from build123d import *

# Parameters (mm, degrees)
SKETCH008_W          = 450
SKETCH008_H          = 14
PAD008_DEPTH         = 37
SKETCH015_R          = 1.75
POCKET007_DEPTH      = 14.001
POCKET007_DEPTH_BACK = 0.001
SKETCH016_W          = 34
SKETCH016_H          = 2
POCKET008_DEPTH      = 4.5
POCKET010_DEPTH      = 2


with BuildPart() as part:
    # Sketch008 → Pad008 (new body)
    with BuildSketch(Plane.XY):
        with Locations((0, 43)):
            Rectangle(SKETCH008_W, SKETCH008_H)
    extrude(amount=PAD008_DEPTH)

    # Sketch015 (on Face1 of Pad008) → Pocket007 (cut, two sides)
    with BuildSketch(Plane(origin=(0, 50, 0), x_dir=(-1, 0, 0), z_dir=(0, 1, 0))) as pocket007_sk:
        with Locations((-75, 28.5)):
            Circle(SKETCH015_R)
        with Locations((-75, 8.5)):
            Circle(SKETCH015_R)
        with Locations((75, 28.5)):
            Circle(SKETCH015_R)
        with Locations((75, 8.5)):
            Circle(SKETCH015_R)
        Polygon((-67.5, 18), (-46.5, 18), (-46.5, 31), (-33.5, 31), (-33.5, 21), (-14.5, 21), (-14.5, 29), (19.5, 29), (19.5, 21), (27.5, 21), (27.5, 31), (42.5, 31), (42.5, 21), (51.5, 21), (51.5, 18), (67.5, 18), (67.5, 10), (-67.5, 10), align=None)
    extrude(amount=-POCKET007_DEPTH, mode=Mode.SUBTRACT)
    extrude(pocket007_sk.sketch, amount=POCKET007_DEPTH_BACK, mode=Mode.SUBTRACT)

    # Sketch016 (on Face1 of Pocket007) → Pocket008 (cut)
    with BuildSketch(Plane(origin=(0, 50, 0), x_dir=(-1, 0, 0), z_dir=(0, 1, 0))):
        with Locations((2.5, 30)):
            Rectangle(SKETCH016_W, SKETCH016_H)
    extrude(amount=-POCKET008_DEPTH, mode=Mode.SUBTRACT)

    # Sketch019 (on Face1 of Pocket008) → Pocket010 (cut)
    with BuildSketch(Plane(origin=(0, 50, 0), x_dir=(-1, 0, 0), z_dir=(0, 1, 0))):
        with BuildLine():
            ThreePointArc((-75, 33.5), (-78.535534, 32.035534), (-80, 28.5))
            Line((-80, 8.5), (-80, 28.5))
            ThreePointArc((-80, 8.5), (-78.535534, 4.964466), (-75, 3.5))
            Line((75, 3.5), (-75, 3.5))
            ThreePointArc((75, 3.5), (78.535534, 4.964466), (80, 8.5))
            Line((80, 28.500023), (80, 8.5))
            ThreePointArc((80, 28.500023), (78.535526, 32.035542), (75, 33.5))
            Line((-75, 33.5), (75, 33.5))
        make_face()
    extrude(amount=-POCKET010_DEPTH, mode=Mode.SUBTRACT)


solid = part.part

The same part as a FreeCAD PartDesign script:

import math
import FreeCAD as App
import Part
import Sketcher
from FreeCAD import Vector

doc = App.newDocument("Part")
body = doc.addObject("PartDesign::Body", "Body")

# Sketch on XY plane
sketch1 = body.newObject("Sketcher::SketchObject", "Sketch")
sketch1.AttachmentSupport = (doc.getObject("XY_Plane"), [""])
sketch1.MapMode = "FlatFace"
sketch1.addGeometry(Part.LineSegment(Vector(-225, 50, 0), Vector(-225, 36, 0)), False)
sketch1.addGeometry(Part.LineSegment(Vector(-225, 36, 0), Vector(225, 36, 0)), False)
sketch1.addGeometry(Part.LineSegment(Vector(225, 36, 0), Vector(225, 50, 0)), False)
sketch1.addGeometry(Part.LineSegment(Vector(225, 50, 0), Vector(-225, 50, 0)), False)
sketch1.addConstraint(Sketcher.Constraint("Coincident", 0, 2, 1, 1))
sketch1.addConstraint(Sketcher.Constraint("Coincident", 1, 2, 2, 1))
sketch1.addConstraint(Sketcher.Constraint("Coincident", 2, 2, 3, 1))
sketch1.addConstraint(Sketcher.Constraint("Coincident", 3, 2, 0, 1))
sketch1.addConstraint(Sketcher.Constraint("Vertical", 0))
sketch1.addConstraint(Sketcher.Constraint("Horizontal", 1))
sketch1.addConstraint(Sketcher.Constraint("Vertical", 2))
sketch1.addConstraint(Sketcher.Constraint("Horizontal", 3))
sketch1.addConstraint(Sketcher.Constraint("DistanceX", 1, 1, 1, 2, 450.0))
sketch1.addConstraint(Sketcher.Constraint("DistanceY", 0, 2, 0, 1, 14.0))
sketch1.addConstraint(Sketcher.Constraint("DistanceX", 0, 2, -1, 1, 225.0))
sketch1.addConstraint(Sketcher.Constraint("DistanceY", -1, 1, 0, 2, 36.0))
pad1 = body.newObject("PartDesign::Pad", "Pad")
pad1.Profile = sketch1
pad1.Length = 37

# Sketch on XZ plane
sketch2 = body.newObject("Sketcher::SketchObject", "Sketch001")
sketch2.AttachmentSupport = (doc.getObject("XZ_Plane"), [""])
sketch2.MapMode = "FlatFace"
sketch2.AttachmentOffset = App.Placement(Vector(0, 0, -50), App.Rotation())
sketch2.addGeometry(Part.Circle(Vector(75, 28.5, 0), Vector(0, 0, 1), 1.8), False)
sketch2.addGeometry(Part.Circle(Vector(75, 8.5, 0), Vector(0, 0, 1), 1.8), False)
sketch2.addGeometry(Part.Circle(Vector(-75, 28.5, 0), Vector(0, 0, 1), 1.8), False)
sketch2.addGeometry(Part.Circle(Vector(-75, 8.5, 0), Vector(0, 0, 1), 1.8), False)
sketch2.addGeometry(Part.LineSegment(Vector(46.5, 18, 0), Vector(67.5, 18, 0)), False)
sketch2.addGeometry(Part.LineSegment(Vector(67.5, 18, 0), Vector(67.5, 10, 0)), False)
sketch2.addGeometry(Part.LineSegment(Vector(67.5, 10, 0), Vector(-67.5, 10, 0)), False)
sketch2.addGeometry(Part.LineSegment(Vector(-67.5, 10, 0), Vector(-67.5, 18, 0)), False)
sketch2.addGeometry(Part.LineSegment(Vector(-67.5, 18, 0), Vector(-51.5, 18, 0)), False)
sketch2.addGeometry(Part.LineSegment(Vector(-51.5, 18, 0), Vector(-51.5, 21, 0)), False)
sketch2.addGeometry(Part.LineSegment(Vector(-51.5, 21, 0), Vector(-42.5, 21, 0)), False)
sketch2.addGeometry(Part.LineSegment(Vector(-42.5, 21, 0), Vector(-42.5, 31, 0)), False)
sketch2.addGeometry(Part.LineSegment(Vector(-42.5, 31, 0), Vector(-27.5, 31, 0)), False)
sketch2.addGeometry(Part.LineSegment(Vector(-27.5, 31, 0), Vector(-27.5, 21, 0)), False)
sketch2.addGeometry(Part.LineSegment(Vector(-27.5, 21, 0), Vector(-19.5, 21, 0)), False)
sketch2.addGeometry(Part.LineSegment(Vector(-19.5, 21, 0), Vector(-19.5, 29, 0)), False)
sketch2.addGeometry(Part.LineSegment(Vector(-19.5, 29, 0), Vector(14.5, 29, 0)), False)
sketch2.addGeometry(Part.LineSegment(Vector(14.5, 29, 0), Vector(14.5, 21, 0)), False)
sketch2.addGeometry(Part.LineSegment(Vector(14.5, 21, 0), Vector(33.5, 21, 0)), False)
sketch2.addGeometry(Part.LineSegment(Vector(33.5, 21, 0), Vector(33.5, 31, 0)), False)
sketch2.addGeometry(Part.LineSegment(Vector(33.5, 31, 0), Vector(46.5, 31, 0)), False)
sketch2.addGeometry(Part.LineSegment(Vector(46.5, 31, 0), Vector(46.5, 18, 0)), False)
sketch2.addConstraint(Sketcher.Constraint("Coincident", 4, 2, 5, 1))
sketch2.addConstraint(Sketcher.Constraint("Coincident", 5, 2, 6, 1))
sketch2.addConstraint(Sketcher.Constraint("Coincident", 6, 2, 7, 1))
sketch2.addConstraint(Sketcher.Constraint("Coincident", 7, 2, 8, 1))
sketch2.addConstraint(Sketcher.Constraint("Coincident", 8, 2, 9, 1))
sketch2.addConstraint(Sketcher.Constraint("Coincident", 9, 2, 10, 1))
sketch2.addConstraint(Sketcher.Constraint("Coincident", 10, 2, 11, 1))
sketch2.addConstraint(Sketcher.Constraint("Coincident", 11, 2, 12, 1))
sketch2.addConstraint(Sketcher.Constraint("Coincident", 12, 2, 13, 1))
sketch2.addConstraint(Sketcher.Constraint("Coincident", 13, 2, 14, 1))
sketch2.addConstraint(Sketcher.Constraint("Coincident", 14, 2, 15, 1))
sketch2.addConstraint(Sketcher.Constraint("Coincident", 15, 2, 16, 1))
sketch2.addConstraint(Sketcher.Constraint("Coincident", 16, 2, 17, 1))
sketch2.addConstraint(Sketcher.Constraint("Coincident", 17, 2, 18, 1))
sketch2.addConstraint(Sketcher.Constraint("Coincident", 18, 2, 19, 1))
sketch2.addConstraint(Sketcher.Constraint("Coincident", 19, 2, 20, 1))
sketch2.addConstraint(Sketcher.Constraint("Coincident", 20, 2, 21, 1))
sketch2.addConstraint(Sketcher.Constraint("Coincident", 21, 2, 4, 1))
sketch2.addConstraint(Sketcher.Constraint("Horizontal", 4))
sketch2.addConstraint(Sketcher.Constraint("Vertical", 5))
sketch2.addConstraint(Sketcher.Constraint("Horizontal", 6))
sketch2.addConstraint(Sketcher.Constraint("Vertical", 7))
sketch2.addConstraint(Sketcher.Constraint("Horizontal", 8))
sketch2.addConstraint(Sketcher.Constraint("Vertical", 9))
sketch2.addConstraint(Sketcher.Constraint("Horizontal", 10))
sketch2.addConstraint(Sketcher.Constraint("Vertical", 11))
sketch2.addConstraint(Sketcher.Constraint("Horizontal", 12))
sketch2.addConstraint(Sketcher.Constraint("Vertical", 13))
sketch2.addConstraint(Sketcher.Constraint("Horizontal", 14))
sketch2.addConstraint(Sketcher.Constraint("Vertical", 15))
sketch2.addConstraint(Sketcher.Constraint("Horizontal", 16))
sketch2.addConstraint(Sketcher.Constraint("Vertical", 17))
sketch2.addConstraint(Sketcher.Constraint("Horizontal", 18))
sketch2.addConstraint(Sketcher.Constraint("Vertical", 19))
sketch2.addConstraint(Sketcher.Constraint("Horizontal", 20))
sketch2.addConstraint(Sketcher.Constraint("Vertical", 21))
sketch2.addConstraint(Sketcher.Constraint("Equal", 0, 1))
sketch2.addConstraint(Sketcher.Constraint("Equal", 1, 2))
sketch2.addConstraint(Sketcher.Constraint("Equal", 2, 3))
sketch2.addConstraint(Sketcher.Constraint("Symmetric", 0, 3, 2, 3, -2))
sketch2.addConstraint(Sketcher.Constraint("Symmetric", 1, 3, 3, 3, -2))
sketch2.addConstraint(Sketcher.Constraint("Symmetric", 4, 2, 7, 2, -2))
sketch2.addConstraint(Sketcher.Constraint("Horizontal", 10, 2, 13, 2))
sketch2.addConstraint(Sketcher.Constraint("Horizontal", 14, 2, 17, 2))
sketch2.addConstraint(Sketcher.Constraint("Horizontal", 12, 2, 19, 2))
sketch2.addConstraint(Sketcher.Constraint("Vertical", 0, 3, 1, 3))
sketch2.addConstraint(Sketcher.Constraint("Equal", 14, 5))
sketch2.addConstraint(Sketcher.Constraint("Equal", 7, 15))
sketch2.addConstraint(Sketcher.Constraint("Equal", 20, 21))
sketch2.addConstraint(Sketcher.Constraint("Diameter", 0, 3.5))
sketch2.addConstraint(Sketcher.Constraint("DistanceX", 4, 1, 4, 2, 21.0))
sketch2.addConstraint(Sketcher.Constraint("DistanceX", 6, 2, 6, 1, 135.0))
sketch2.addConstraint(Sketcher.Constraint("DistanceX", 8, 1, 8, 2, 16.0))
sketch2.addConstraint(Sketcher.Constraint("DistanceX", 10, 1, 10, 2, 9.0))
sketch2.addConstraint(Sketcher.Constraint("DistanceX", 12, 1, 12, 2, 15.0))
sketch2.addConstraint(Sketcher.Constraint("DistanceX", 14, 1, 14, 2, 8.0))
sketch2.addConstraint(Sketcher.Constraint("DistanceX", 16, 1, 16, 2, 34.0))
sketch2.addConstraint(Sketcher.Constraint("DistanceX", 18, 1, 18, 2, 19.0))
sketch2.addConstraint(Sketcher.Constraint("DistanceY", 9, 1, 9, 2, 3.0))
sketch2.addConstraint(Sketcher.Constraint("DistanceX", -1, 1, 0, 3, 75.0))
sketch2.addConstraint(Sketcher.Constraint("DistanceY", -1, 1, 4, 2, 18.0))
sketch2.addConstraint(Sketcher.Constraint("DistanceY", 1, 3, 0, 3, 20.0))
sketch2.addConstraint(Sketcher.Constraint("DistanceY", -1, 1, 0, 3, 28.5))
pocket1 = body.newObject("PartDesign::Pocket", "Pocket")
pocket1.Profile = sketch2
pocket1.Type = "ThroughAll"
pocket1.Midplane = True

# Sketch on XZ plane
sketch3 = body.newObject("Sketcher::SketchObject", "Sketch002")
sketch3.AttachmentSupport = (doc.getObject("XZ_Plane"), [""])
sketch3.MapMode = "FlatFace"
sketch3.AttachmentOffset = App.Placement(Vector(0, 0, -50), App.Rotation())
sketch3.addGeometry(Part.LineSegment(Vector(14.5, 31, 0), Vector(14.5, 29, 0)), False)
sketch3.addGeometry(Part.LineSegment(Vector(14.5, 29, 0), Vector(-19.5, 29, 0)), False)
sketch3.addGeometry(Part.LineSegment(Vector(-19.5, 29, 0), Vector(-19.5, 31, 0)), False)
sketch3.addGeometry(Part.LineSegment(Vector(-19.5, 31, 0), Vector(14.5, 31, 0)), False)
sketch3.addConstraint(Sketcher.Constraint("Coincident", 0, 2, 1, 1))
sketch3.addConstraint(Sketcher.Constraint("Coincident", 1, 2, 2, 1))
sketch3.addConstraint(Sketcher.Constraint("Coincident", 2, 2, 3, 1))
sketch3.addConstraint(Sketcher.Constraint("Coincident", 3, 2, 0, 1))
sketch3.addConstraint(Sketcher.Constraint("Vertical", 0))
sketch3.addConstraint(Sketcher.Constraint("Horizontal", 1))
sketch3.addConstraint(Sketcher.Constraint("Vertical", 2))
sketch3.addConstraint(Sketcher.Constraint("Horizontal", 3))
sketch3.addConstraint(Sketcher.Constraint("DistanceX", 1, 2, 1, 1, 34.0))
sketch3.addConstraint(Sketcher.Constraint("DistanceY", 0, 2, 0, 1, 2.0))
sketch3.addConstraint(Sketcher.Constraint("DistanceY", -1, 1, 0, 2, 29.0))
sketch3.addConstraint(Sketcher.Constraint("DistanceX", -1, 1, 0, 2, 14.5))
pocket2 = body.newObject("PartDesign::Pocket", "Pocket001")
pocket2.Profile = sketch3
pocket2.Length = 4.5
pocket2.Reversed = True

# Sketch on XZ plane
sketch4 = body.newObject("Sketcher::SketchObject", "Sketch003")
sketch4.AttachmentSupport = (doc.getObject("XZ_Plane"), [""])
sketch4.MapMode = "FlatFace"
sketch4.AttachmentOffset = App.Placement(Vector(0, 0, -50), App.Rotation())
sketch4.addGeometry(Part.ArcOfCircle(Part.Circle(Vector(75, 28.5, 0), Vector(0, 0, 1), 5), math.radians(0), math.radians(90)), False)
sketch4.addGeometry(Part.LineSegment(Vector(80, 28.5, 0), Vector(80, 8.5, 0)), False)
sketch4.addGeometry(Part.ArcOfCircle(Part.Circle(Vector(75, 8.5, 0), Vector(0, 0, 1), 5), math.radians(-90), math.radians(0)), False)
sketch4.addGeometry(Part.LineSegment(Vector(75, 3.5, 0), Vector(-75, 3.5, 0)), False)
sketch4.addGeometry(Part.ArcOfCircle(Part.Circle(Vector(-75, 8.5, 0), Vector(0, 0, 1), 5), math.radians(180), math.radians(270)), False)
sketch4.addGeometry(Part.LineSegment(Vector(-80, 8.5, 0), Vector(-80, 28.5, 0)), False)
sketch4.addGeometry(Part.ArcOfCircle(Part.Circle(Vector(-75, 28.5, 0), Vector(0, 0, 1), 5), math.radians(90), math.radians(180)), False)
sketch4.addGeometry(Part.LineSegment(Vector(-75, 33.5, 0), Vector(75, 33.5, 0)), False)
sketch4.addConstraint(Sketcher.Constraint("Tangent", 0, 1, 1, 1))
sketch4.addConstraint(Sketcher.Constraint("Tangent", 1, 2, 2, 2))
sketch4.addConstraint(Sketcher.Constraint("Tangent", 2, 1, 3, 1))
sketch4.addConstraint(Sketcher.Constraint("Tangent", 3, 2, 4, 2))
sketch4.addConstraint(Sketcher.Constraint("Tangent", 4, 1, 5, 1))
sketch4.addConstraint(Sketcher.Constraint("Coincident", 5, 2, 6, 2))
sketch4.addConstraint(Sketcher.Constraint("Tangent", 6, 1, 7, 1))
sketch4.addConstraint(Sketcher.Constraint("Tangent", 7, 2, 0, 2))
sketch4.addConstraint(Sketcher.Constraint("Vertical", 1))
sketch4.addConstraint(Sketcher.Constraint("Horizontal", 3))
sketch4.addConstraint(Sketcher.Constraint("Vertical", 5))
sketch4.addConstraint(Sketcher.Constraint("Horizontal", 7))
sketch4.addConstraint(Sketcher.Constraint("Equal", 0, 2))
sketch4.addConstraint(Sketcher.Constraint("Equal", 2, 4))
sketch4.addConstraint(Sketcher.Constraint("Equal", 4, 6))
sketch4.addConstraint(Sketcher.Constraint("Radius", 0, 5.0))
sketch4.addConstraint(Sketcher.Constraint("DistanceX", 3, 2, 3, 1, 150.0))
sketch4.addConstraint(Sketcher.Constraint("DistanceY", 1, 2, 1, 1, 20.0))
sketch4.addConstraint(Sketcher.Constraint("DistanceX", -1, 1, 0, 3, 75.0))
sketch4.addConstraint(Sketcher.Constraint("DistanceY", -1, 1, 0, 3, 28.5))
sketch4.addConstraint(Sketcher.Constraint("DistanceY", 5, 1, 5, 2, 20.000023))
pocket3 = body.newObject("PartDesign::Pocket", "Pocket002")
pocket3.Profile = sketch4
pocket3.Length = 2
pocket3.Reversed = True

doc.recompute()
